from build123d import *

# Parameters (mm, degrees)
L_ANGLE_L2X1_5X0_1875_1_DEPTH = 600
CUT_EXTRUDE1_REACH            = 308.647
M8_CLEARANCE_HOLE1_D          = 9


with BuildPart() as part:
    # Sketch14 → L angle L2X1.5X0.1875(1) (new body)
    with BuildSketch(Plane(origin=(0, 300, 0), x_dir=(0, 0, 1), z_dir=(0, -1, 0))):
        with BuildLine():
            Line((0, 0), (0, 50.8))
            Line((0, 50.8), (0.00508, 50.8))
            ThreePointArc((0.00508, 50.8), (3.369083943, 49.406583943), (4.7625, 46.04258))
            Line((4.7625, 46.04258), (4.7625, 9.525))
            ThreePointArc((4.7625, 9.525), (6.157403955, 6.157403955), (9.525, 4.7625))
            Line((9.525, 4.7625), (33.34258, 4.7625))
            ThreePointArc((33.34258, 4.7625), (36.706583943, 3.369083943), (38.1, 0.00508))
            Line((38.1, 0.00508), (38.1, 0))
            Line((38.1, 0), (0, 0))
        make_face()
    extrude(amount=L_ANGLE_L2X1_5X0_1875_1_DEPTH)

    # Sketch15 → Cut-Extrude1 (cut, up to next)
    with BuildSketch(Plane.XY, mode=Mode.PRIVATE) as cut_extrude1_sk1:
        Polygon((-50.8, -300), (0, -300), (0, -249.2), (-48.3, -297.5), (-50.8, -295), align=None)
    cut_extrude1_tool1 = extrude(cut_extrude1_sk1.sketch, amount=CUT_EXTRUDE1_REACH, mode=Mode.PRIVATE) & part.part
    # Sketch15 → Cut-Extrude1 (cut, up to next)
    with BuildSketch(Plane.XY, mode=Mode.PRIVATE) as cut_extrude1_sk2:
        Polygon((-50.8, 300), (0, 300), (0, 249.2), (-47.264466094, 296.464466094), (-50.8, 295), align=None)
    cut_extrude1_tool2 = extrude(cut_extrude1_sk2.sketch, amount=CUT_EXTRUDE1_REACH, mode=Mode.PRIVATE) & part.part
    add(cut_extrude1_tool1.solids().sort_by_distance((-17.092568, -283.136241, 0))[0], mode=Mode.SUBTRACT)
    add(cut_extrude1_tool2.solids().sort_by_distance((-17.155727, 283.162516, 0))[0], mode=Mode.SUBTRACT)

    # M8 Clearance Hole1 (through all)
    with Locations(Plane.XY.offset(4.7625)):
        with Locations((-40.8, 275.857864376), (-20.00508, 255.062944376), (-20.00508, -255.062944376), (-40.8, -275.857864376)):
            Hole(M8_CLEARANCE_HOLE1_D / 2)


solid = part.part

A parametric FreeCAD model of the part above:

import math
import FreeCAD as App
import Part
import Sketcher
Q = App.Units.Quantity


def add_polygon(sketch, points):
    """Adds a closed chain of lines whose ends are joined by coincident constraints."""
    first, n = sketch.GeometryCount, len(points)
    for a, b in zip(points, points[1:] + points[:1]):
        sketch.addGeometry(Part.LineSegment(App.Vector(*a, 0), App.Vector(*b, 0)), False)
    for i in range(n):
        sketch.addConstraint(Sketcher.Constraint("Coincident", first + i, 2, first + (i + 1) % n, 1))

doc = App.newDocument("Part")
body = doc.addObject("PartDesign::Body", "Body")

sketch1 = body.newObject("Sketcher::SketchObject", "Sketch")
sketch1.AttachmentSupport = (doc.getObject("XZ_Plane"), [""])
sketch1.MapMode = "FlatFace"
sketch1.AttachmentOffset = App.Placement(App.Vector(0, 0, -300), App.Rotation())
sketch1.addGeometry([
    Part.LineSegment(App.Vector(-50.8, 0, 0), App.Vector(0, 0, 0)),
    Part.LineSegment(App.Vector(0, 0, 0), App.Vector(0, 38.1, 0)),
    Part.LineSegment(App.Vector(0, 38.1, 0), App.Vector(-0.005, 38.1, 0)),
    Part.ArcOfCircle(Part.Circle(App.Vector(-0.005, 33.343, 0), App.Vector(0, 0, 1), 4.757), math.radians(90), math.radians(180)),
    Part.LineSegment(App.Vector(-4.763, 33.343, 0), App.Vector(-4.763, 9.525, 0)),
    Part.ArcOfCircle(Part.Circle(App.Vector(-9.525, 9.525, 0), App.Vector(0, 0, 1), 4.763), math.radians(-90), math.radians(0)),
    Part.LineSegment(App.Vector(-9.525, 4.763, 0), App.Vector(-46.043, 4.763, 0)),
    Part.ArcOfCircle(Part.Circle(App.Vector(-46.043, 0.005, 0), App.Vector(0, 0, 1), 4.757), math.radians(90), math.radians(180)),
    Part.LineSegment(App.Vector(-50.8, 0.005, 0), App.Vector(-50.8, 0, 0)),
], False)
sketch1.addConstraint([
    Sketcher.Constraint("Coincident", 0, 2, 1, 1),
    Sketcher.Constraint("Coincident", 1, 2, 2, 1),
    Sketcher.Constraint("Tangent", 2, 2, 3, 1),
    Sketcher.Constraint("Tangent", 3, 2, 4, 1),
    Sketcher.Constraint("Tangent", 4, 2, 5, 2),
    Sketcher.Constraint("Tangent", 5, 1, 6, 1),
    Sketcher.Constraint("Tangent", 6, 2, 7, 1),
    Sketcher.Constraint("Tangent", 7, 2, 8, 1),
    Sketcher.Constraint("Coincident", 8, 2, 0, 1),
    Sketcher.Constraint("Horizontal", 0),
    Sketcher.Constraint("Vertical", 1),
    Sketcher.Constraint("Vertical", 4),
    Sketcher.Constraint("Horizontal", 6),
    Sketcher.Constraint("Coincident", 0, 2, -1, 1),
    Sketcher.Constraint("Equal", 3, 7),
    Sketcher.Constraint("Vertical", 3, 3, 2, 2),
    Sketcher.Constraint("Equal", 2, 8),
    Sketcher.Constraint("DistanceX", 0, 1, 0, 2, Q("50.8 mm")),
    Sketcher.Constraint("DistanceY", 1, 1, 1, 2, Q("38.1 mm")),
    Sketcher.Constraint("Radius", 5, Q("4.7625 mm")),
    Sketcher.Constraint("Radius", 3, Q("4.75742 mm")),
    Sketcher.Constraint("DistanceX", 5, 3, -1, 1, Q("9.525 mm")),
    Sketcher.Constraint("DistanceY", -1, 1, 5, 3, Q("9.525 mm")),
])
pad1 = body.newObject("PartDesign::Pad", "Pad")
pad1.Profile = sketch1
pad1.Length = 600

sketch2 = body.newObject("Sketcher::SketchObject", "Sketch001")
sketch2.AttachmentSupport = (doc.getObject("XY_Plane"), [""])
sketch2.MapMode = "FlatFace"
add_polygon(sketch2, [(-50.8, -300), (0, -300), (0, -249.2), (-48.3, -297.5), (-50.8, -295)])
sketch2.addConstraint([
    Sketcher.Constraint("Horizontal", 0),
    Sketcher.Constraint("Vertical", 1),
    Sketcher.Constraint("Vertical", 4),
    Sketcher.Constraint("PointOnObject", 0, 2, -2),
    Sketcher.Constraint("Perpendicular", 2, 3),
    Sketcher.Constraint("Equal", 0, 1),
    Sketcher.Constraint("DistanceY", 4, 2, 4, 1, Q("5 mm")),
    Sketcher.Constraint("Angle", 2, Q("-135 deg")),
    Sketcher.Constraint("DistanceX", 0, 1, 0, 2, Q("50.8 mm")),
    Sketcher.Constraint("DistanceY", 0, 2, -1, 1, Q("300 mm")),
])
pocket1 = body.newObject("PartDesign::Pocket", "Pocket")
pocket1.Profile = sketch2
pocket1.Length = 38.1
pocket1.Reversed = True

sketch3 = body.newObject("Sketcher::SketchObject", "Sketch002")
sketch3.AttachmentSupport = (doc.getObject("XY_Plane"), [""])
sketch3.MapMode = "FlatFace"
add_polygon(sketch3, [(0, 300), (-50.8, 300), (-50.8, 295), (-47.3, 296.5), (0, 249.2)])
sketch3.addConstraint([
    Sketcher.Constraint("Horizontal", 0),
    Sketcher.Constraint("Vertical", 1),
    Sketcher.Constraint("Vertical", 4),
    Sketcher.Constraint("PointOnObject", 3, 2, -2),
    Sketcher.Constraint("Equal", 0, 4),
    Sketcher.Constraint("DistanceY", 1, 2, 1, 1, Q("5 mm")),
    Sketcher.Constraint("Angle", 3, Q("-45 deg")),
    Sketcher.Constraint("DistanceX", 0, 2, 0, 1, Q("50.8 mm")),
    Sketcher.Constraint("DistanceY", -1, 1, 0, 2, Q("300 mm")),
    Sketcher.Constraint("Angle", 2, Q("22.5 deg")),
])
pocket2 = body.newObject("PartDesign::Pocket", "Pocket001")
pocket2.Profile = sketch3
pocket2.Length = 38.1
pocket2.Reversed = True

sketch4 = body.newObject("Sketcher::SketchObject", "Sketch003")
sketch4.AttachmentSupport = (doc.getObject("XY_Plane"), [""])
sketch4.MapMode = "FlatFace"
sketch4.AttachmentOffset = App.Placement(App.Vector(0, 0, 4.7625), App.Rotation())
sketch4.addGeometry([
    Part.Circle(App.Vector(-40.8, 275.9, 0), App.Vector(0, 0, 1), 4.5),
    Part.Circle(App.Vector(-20, 255.1, 0), App.Vector(0, 0, 1), 4.5),
    Part.Circle(App.Vector(-20, -255.1, 0), App.Vector(0, 0, 1), 4.5),
    Part.Circle(App.Vector(-40.8, -275.9, 0), App.Vector(0, 0, 1), 4.5),
], False)
sketch4.addConstraint([
    Sketcher.Constraint("Equal", 0, 1),
    Sketcher.Constraint("Equal", 1, 2),
    Sketcher.Constraint("Equal", 2, 3),
    Sketcher.Constraint("Symmetric", 1, 3, 2, 3, -1),
    Sketcher.Constraint("Symmetric", 0, 3, 3, 3, -1),
    Sketcher.Constraint("Diameter", 0, Q("9 mm")),
    Sketcher.Constraint("DistanceX", 0, 3, -1, 1, Q("40.8 mm")),
    Sketcher.Constraint("DistanceX", 1, 3, -1, 1, Q("20.00508 mm")),
    Sketcher.Constraint("DistanceY", 1, 3, 0, 3, Q("20.79492 mm")),
    Sketcher.Constraint("DistanceY", 2, 3, 1, 3, Q("510.125889 mm")),
])
doc.recompute()
hole = body.newObject("PartDesign::Hole", "Hole")
hole.Profile = sketch4
hole.ThreadType = "None"
hole.Diameter = 9
hole.DepthType = "ThroughAll"

doc.recompute()
